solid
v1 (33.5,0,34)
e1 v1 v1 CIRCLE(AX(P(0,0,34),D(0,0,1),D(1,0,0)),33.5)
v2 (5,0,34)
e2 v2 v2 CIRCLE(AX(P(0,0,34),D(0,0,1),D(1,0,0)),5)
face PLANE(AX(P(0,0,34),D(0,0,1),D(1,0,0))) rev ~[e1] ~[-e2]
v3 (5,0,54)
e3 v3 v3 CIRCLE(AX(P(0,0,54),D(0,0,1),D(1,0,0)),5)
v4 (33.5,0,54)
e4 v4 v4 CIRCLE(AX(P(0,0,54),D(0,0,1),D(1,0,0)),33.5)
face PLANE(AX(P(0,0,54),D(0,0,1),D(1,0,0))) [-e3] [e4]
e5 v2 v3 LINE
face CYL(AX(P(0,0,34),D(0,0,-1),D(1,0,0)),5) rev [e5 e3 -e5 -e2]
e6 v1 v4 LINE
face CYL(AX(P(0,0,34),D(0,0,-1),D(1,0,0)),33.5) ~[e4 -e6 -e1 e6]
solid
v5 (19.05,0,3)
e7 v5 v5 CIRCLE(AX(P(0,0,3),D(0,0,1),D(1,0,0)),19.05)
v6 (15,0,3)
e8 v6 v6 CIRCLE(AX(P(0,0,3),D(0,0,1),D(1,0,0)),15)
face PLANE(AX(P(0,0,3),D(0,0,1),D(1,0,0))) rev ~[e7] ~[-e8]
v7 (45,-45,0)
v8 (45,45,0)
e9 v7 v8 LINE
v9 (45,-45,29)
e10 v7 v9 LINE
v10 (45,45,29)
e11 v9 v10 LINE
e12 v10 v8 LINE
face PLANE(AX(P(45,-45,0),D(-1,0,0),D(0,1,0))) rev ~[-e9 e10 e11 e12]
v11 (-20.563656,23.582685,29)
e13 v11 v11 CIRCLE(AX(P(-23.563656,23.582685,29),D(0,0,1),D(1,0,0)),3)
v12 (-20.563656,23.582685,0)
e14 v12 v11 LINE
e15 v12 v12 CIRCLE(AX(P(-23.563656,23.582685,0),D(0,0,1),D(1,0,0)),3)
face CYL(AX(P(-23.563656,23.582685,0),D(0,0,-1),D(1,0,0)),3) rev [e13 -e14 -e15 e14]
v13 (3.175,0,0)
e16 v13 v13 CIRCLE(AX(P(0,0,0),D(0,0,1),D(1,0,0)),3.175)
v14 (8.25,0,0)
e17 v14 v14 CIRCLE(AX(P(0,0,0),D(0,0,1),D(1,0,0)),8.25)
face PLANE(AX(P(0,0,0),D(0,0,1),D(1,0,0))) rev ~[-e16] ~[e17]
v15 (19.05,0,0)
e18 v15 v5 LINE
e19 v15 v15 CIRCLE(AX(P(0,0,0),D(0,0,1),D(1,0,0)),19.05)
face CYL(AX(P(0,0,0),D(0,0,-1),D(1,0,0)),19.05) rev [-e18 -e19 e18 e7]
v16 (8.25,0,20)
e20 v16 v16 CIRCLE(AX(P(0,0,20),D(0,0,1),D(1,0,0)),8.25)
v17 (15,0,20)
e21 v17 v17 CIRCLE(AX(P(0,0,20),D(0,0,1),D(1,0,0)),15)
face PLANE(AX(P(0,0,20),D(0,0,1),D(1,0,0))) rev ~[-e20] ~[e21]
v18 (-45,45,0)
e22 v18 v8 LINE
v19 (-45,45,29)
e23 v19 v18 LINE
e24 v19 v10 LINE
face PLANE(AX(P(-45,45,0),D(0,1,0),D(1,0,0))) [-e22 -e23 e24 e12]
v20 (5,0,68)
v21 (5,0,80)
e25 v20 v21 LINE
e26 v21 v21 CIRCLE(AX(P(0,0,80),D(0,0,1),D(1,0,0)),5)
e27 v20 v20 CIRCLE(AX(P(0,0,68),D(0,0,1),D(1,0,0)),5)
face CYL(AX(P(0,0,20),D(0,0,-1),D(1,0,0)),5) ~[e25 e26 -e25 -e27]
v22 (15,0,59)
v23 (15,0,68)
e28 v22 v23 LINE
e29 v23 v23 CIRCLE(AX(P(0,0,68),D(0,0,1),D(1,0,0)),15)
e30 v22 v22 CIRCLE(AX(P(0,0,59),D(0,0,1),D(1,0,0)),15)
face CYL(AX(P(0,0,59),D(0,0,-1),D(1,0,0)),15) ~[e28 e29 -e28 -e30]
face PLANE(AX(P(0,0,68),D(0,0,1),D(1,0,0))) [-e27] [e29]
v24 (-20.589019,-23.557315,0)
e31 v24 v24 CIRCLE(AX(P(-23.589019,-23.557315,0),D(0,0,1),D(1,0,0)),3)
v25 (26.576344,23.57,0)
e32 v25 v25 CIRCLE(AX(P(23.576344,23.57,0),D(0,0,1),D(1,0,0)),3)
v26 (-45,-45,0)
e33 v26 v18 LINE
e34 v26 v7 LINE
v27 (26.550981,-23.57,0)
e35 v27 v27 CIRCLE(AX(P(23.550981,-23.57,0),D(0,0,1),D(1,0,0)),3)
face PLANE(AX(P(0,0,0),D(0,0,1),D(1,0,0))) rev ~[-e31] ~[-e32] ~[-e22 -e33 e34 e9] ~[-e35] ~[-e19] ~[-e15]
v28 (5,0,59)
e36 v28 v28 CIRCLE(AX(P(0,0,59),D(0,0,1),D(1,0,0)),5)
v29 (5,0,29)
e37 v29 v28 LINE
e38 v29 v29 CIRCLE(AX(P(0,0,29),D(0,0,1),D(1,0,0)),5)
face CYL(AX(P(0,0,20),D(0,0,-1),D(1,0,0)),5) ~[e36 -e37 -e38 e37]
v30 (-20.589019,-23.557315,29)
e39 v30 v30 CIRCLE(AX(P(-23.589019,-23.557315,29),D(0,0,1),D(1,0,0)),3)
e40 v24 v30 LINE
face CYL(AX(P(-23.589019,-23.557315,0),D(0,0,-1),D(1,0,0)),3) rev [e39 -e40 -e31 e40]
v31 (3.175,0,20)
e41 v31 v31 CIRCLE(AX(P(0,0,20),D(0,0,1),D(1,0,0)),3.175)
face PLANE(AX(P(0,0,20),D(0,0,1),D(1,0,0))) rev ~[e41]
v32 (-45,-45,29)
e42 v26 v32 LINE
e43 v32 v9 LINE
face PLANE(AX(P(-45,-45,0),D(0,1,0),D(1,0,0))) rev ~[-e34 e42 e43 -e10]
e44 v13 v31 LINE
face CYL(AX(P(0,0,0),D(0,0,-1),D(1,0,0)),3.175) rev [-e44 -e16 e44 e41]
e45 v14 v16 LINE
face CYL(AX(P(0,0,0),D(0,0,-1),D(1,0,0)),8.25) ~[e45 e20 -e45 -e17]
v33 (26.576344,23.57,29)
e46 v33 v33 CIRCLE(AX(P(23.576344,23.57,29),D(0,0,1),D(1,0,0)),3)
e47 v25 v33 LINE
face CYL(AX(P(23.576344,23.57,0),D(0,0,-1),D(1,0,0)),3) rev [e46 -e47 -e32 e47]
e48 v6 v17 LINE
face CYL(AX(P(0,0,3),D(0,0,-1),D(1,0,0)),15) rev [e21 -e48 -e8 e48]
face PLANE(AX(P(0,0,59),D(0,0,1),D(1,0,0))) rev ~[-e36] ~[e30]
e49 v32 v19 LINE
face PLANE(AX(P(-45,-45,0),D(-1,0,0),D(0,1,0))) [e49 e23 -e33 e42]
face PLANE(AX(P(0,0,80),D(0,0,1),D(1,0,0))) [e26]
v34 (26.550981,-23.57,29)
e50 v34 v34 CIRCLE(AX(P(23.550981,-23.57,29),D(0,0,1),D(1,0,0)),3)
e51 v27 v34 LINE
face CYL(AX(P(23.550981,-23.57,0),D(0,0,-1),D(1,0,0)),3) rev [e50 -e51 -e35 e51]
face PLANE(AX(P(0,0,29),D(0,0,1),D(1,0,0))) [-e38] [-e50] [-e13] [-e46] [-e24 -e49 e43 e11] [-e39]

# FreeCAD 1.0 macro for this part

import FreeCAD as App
import Part
import Sketcher
from FreeCAD import Vector

doc = App.newDocument("Part")
params = doc.addObject("Spreadsheet::Sheet", "Params")
for row, (alias, value) in enumerate([
    ("sketch1_diameter", "16.5 mm"),
    ("sketch1_diameter2", "6.35 mm"),
    ("pad1_length", "20 mm"),
    ("sketch2_diameter", "10 mm"),
    ("pad2_length", "60 mm"),
    ("sketch3_diameter", "30 mm"),
    ("sketch3_diameter2", "10 mm"),
    ("pad3_length", "9 mm"),
    ("sketch4_diameter", "30 mm"),
    ("sketch4_diameter2", "10 mm"),
    ("pad4_length", "9 mm"),
    ("sketch5_diameter", "6 mm"),
    ("sketch5_diameter2", "30 mm"),
    ("sketch5_width", "90 mm"),
    ("pad5_length", "26 mm"),
    ("sketch6_diameter", "6 mm"),
    ("sketch6_diameter2", "38.1 mm"),
    ("sketch6_width", "90 mm"),
    ("pad6_length", "3 mm"),
    ("sketch7_diameter", "67 mm"),
    ("sketch7_diameter2", "10 mm"),
    ("pad7_length", "20 mm"),
], start=1):
    params.set(f"A{row}", alias)
    params.set(f"B{row}", "=" + value)
    params.setAlias(f"B{row}", alias)

body = doc.addObject("PartDesign::Body", "Body")

# Sketch on XY plane
sketch1 = body.newObject("Sketcher::SketchObject", "Sketch")
sketch1.AttachmentSupport = (doc.getObject("XY_Plane"), [""])
sketch1.MapMode = "FlatFace"
sketch1.addGeometry([
    Part.Circle(Vector(0, 0, 0), Vector(0, 0, 1), 8.2),
    Part.Circle(Vector(0, 0, 0), Vector(0, 0, 1), 3.2),
], False)
sketch1.addConstraint([
    Sketcher.Constraint("Coincident", 0, 3, -1, 1),
    Sketcher.Constraint("Coincident", 1, 3, -1, 1),
    Sketcher.Constraint("Diameter", 0, 16.5),
    Sketcher.Constraint("Diameter", 1, 6.35),
])
sketch1.setExpression("Constraints[2]", "Params.sketch1_diameter")
sketch1.setExpression("Constraints[3]", "Params.sketch1_diameter2")
pad1 = body.newObject("PartDesign::Pad", "Pad")
pad1.Profile = sketch1
pad1.setExpression("Length", "Params.pad1_length")

# Sketch on XY plane
sketch2 = body.newObject("Sketcher::SketchObject", "Sketch001")
sketch2.AttachmentSupport = (doc.getObject("XY_Plane"), [""])
sketch2.MapMode = "FlatFace"
sketch2.AttachmentOffset = App.Placement(Vector(0, 0, 20), App.Rotation())
sketch2.addGeometry(Part.Circle(Vector(0, 0, 0), Vector(0, 0, 1), 5), False)
sketch2.addConstraint([
    Sketcher.Constraint("Coincident", 0, 3, -1, 1),
    Sketcher.Constraint("Diameter", 0, 10.0),
])
sketch2.setExpression("Constraints[1]", "Params.sketch2_diameter")
pad2 = body.newObject("PartDesign::Pad", "Pad001")
pad2.Profile = sketch2
pad2.setExpression("Length", "Params.pad2_length")

# Sketch on XY plane
sketch3 = body.newObject("Sketcher::SketchObject", "Sketch002")
sketch3.AttachmentSupport = (doc.getObject("XY_Plane"), [""])
sketch3.MapMode = "FlatFace"
sketch3.AttachmentOffset = App.Placement(Vector(0, 0, 20), App.Rotation())
sketch3.addGeometry([
    Part.Circle(Vector(0, 0, 0), Vector(0, 0, 1), 15),
    Part.Circle(Vector(0, 0, 0), Vector(0, 0, 1), 5),
], False)
sketch3.addConstraint([
    Sketcher.Constraint("Coincident", 0, 3, -1, 1),
    Sketcher.Constraint("Coincident", 1, 3, -1, 1),
    Sketcher.Constraint("Diameter", 0, 30.0),
    Sketcher.Constraint("Diameter", 1, 10.0),
])
sketch3.setExpression("Constraints[2]", "Params.sketch3_diameter")
sketch3.setExpression("Constraints[3]", "Params.sketch3_diameter2")
pad3 = body.newObject("PartDesign::Pad", "Pad002")
pad3.Profile = sketch3
pad3.setExpression("Length", "Params.pad3_length")

# Sketch on XY plane
sketch4 = body.newObject("Sketcher::SketchObject", "Sketch003")
sketch4.AttachmentSupport = (doc.getObject("XY_Plane"), [""])
sketch4.MapMode = "FlatFace"
sketch4.AttachmentOffset = App.Placement(Vector(0, 0, 59), App.Rotation())
sketch4.addGeometry([
    Part.Circle(Vector(0, 0, 0), Vector(0, 0, 1), 15),
    Part.Circle(Vector(0, 0, 0), Vector(0, 0, 1), 5),
], False)
sketch4.addConstraint([
    Sketcher.Constraint("Coincident", 0, 3, -1, 1),
    Sketcher.Constraint("Coincident", 1, 3, -1, 1),
    Sketcher.Constraint("Diameter", 0, 30.0),
    Sketcher.Constraint("Diameter", 1, 10.0),
])
sketch4.setExpression("Constraints[2]", "Params.sketch4_diameter")
sketch4.setExpression("Constraints[3]", "Params.sketch4_diameter2")
pad4 = body.newObject("PartDesign::Pad", "Pad003")
pad4.Profile = sketch4
pad4.setExpression("Length", "Params.pad4_length")

# Sketch on XY plane
sketch5 = body.newObject("Sketcher::SketchObject", "Sketch004")
sketch5.AttachmentSupport = (doc.getObject("XY_Plane"), [""])
sketch5.MapMode = "FlatFace"
sketch5.AttachmentOffset = App.Placement(Vector(0, 0, 3), App.Rotation())
sketch5.addGeometry([
    Part.LineSegment(Vector(-45, 45, 0), Vector(-45, -45, 0)),  # 0
    Part.LineSegment(Vector(-45, -45, 0), Vector(45, -45, 0)),  # 1
    Part.LineSegment(Vector(45, -45, 0), Vector(45, 45, 0)),  # 2
    Part.LineSegment(Vector(45, 45, 0), Vector(-45, 45, 0)),  # 3
    Part.Circle(Vector(-23.6, -23.6, 0), Vector(0, 0, 1), 3),  # 4
    Part.Circle(Vector(23.6, -23.6, 0), Vector(0, 0, 1), 3),  # 5
    Part.Circle(Vector(0, 0, 0), Vector(0, 0, 1), 15),  # 6
    Part.Circle(Vector(-23.6, 23.6, 0), Vector(0, 0, 1), 3),  # 7
    Part.Circle(Vector(23.6, 23.6, 0), Vector(0, 0, 1), 3),  # 8
], False)
sketch5.addConstraint([
    Sketcher.Constraint("Coincident", 0, 2, 1, 1),
    Sketcher.Constraint("Coincident", 1, 2, 2, 1),
    Sketcher.Constraint("Coincident", 2, 2, 3, 1),
    Sketcher.Constraint("Coincident", 3, 2, 0, 1),
    Sketcher.Constraint("Vertical", 0),
    Sketcher.Constraint("Horizontal", 1),
    Sketcher.Constraint("Vertical", 2),
    Sketcher.Constraint("Horizontal", 3),
    Sketcher.Constraint("Coincident", 6, 3, -1, 1),
    Sketcher.Constraint("Equal", 4, 5),
    Sketcher.Constraint("Equal", 5, 7),
    Sketcher.Constraint("Equal", 7, 8),
    Sketcher.Constraint("Symmetric", 0, 2, 2, 2, -1, 1),
    Sketcher.Constraint("Equal", 3, 0),
    Sketcher.Constraint("Diameter", 4, 6.0),
    Sketcher.Constraint("Diameter", 6, 30.0),
    Sketcher.Constraint("DistanceX", 1, 1, 1, 2, 90.0),
    Sketcher.Constraint("DistanceY", 5, 3, -1, 1, 23.57),
    Sketcher.Constraint("DistanceY", -1, 1, 8, 3, 23.57),
    Sketcher.Constraint("DistanceX", 4, 3, 5, 3, 47.14),
    Sketcher.Constraint("DistanceY", 4, 3, 7, 3, 47.14),
    Sketcher.Constraint("DistanceX", 7, 3, 8, 3, 47.14),
    Sketcher.Constraint("DistanceX", 4, 3, -1, 1, 23.589019),
    Sketcher.Constraint("DistanceY", 4, 3, -1, 1, 23.557315),
    Sketcher.Constraint("DistanceX", 7, 3, -1, 1, 23.563656),
])
sketch5.setExpression("Constraints[14]", "Params.sketch5_diameter")
sketch5.setExpression("Constraints[15]", "Params.sketch5_diameter2")
sketch5.setExpression("Constraints[16]", "Params.sketch5_width")
pad5 = body.newObject("PartDesign::Pad", "Pad004")
pad5.Profile = sketch5
pad5.setExpression("Length", "Params.pad5_length")

# Sketch on XY plane
sketch6 = body.newObject("Sketcher::SketchObject", "Sketch005")
sketch6.AttachmentSupport = (doc.getObject("XY_Plane"), [""])
sketch6.MapMode = "FlatFace"
sketch6.addGeometry([
    Part.LineSegment(Vector(-45, 45, 0), Vector(-45, -45, 0)),  # 0
    Part.LineSegment(Vector(-45, -45, 0), Vector(45, -45, 0)),  # 1
    Part.LineSegment(Vector(45, -45, 0), Vector(45, 45, 0)),  # 2
    Part.LineSegment(Vector(45, 45, 0), Vector(-45, 45, 0)),  # 3
    Part.Circle(Vector(-23.6, -23.6, 0), Vector(0, 0, 1), 3),  # 4
    Part.Circle(Vector(23.6, -23.6, 0), Vector(0, 0, 1), 3),  # 5
    Part.Circle(Vector(0, 0, 0), Vector(0, 0, 1), 19.1),  # 6
    Part.Circle(Vector(-23.6, 23.6, 0), Vector(0, 0, 1), 3),  # 7
    Part.Circle(Vector(23.6, 23.6, 0), Vector(0, 0, 1), 3),  # 8
], False)
sketch6.addConstraint([
    Sketcher.Constraint("Coincident", 0, 2, 1, 1),
    Sketcher.Constraint("Coincident", 1, 2, 2, 1),
    Sketcher.Constraint("Coincident", 2, 2, 3, 1),
    Sketcher.Constraint("Coincident", 3, 2, 0, 1),
    Sketcher.Constraint("Vertical", 0),
    Sketcher.Constraint("Horizontal", 1),
    Sketcher.Constraint("Vertical", 2),
    Sketcher.Constraint("Horizontal", 3),
    Sketcher.Constraint("Coincident", 6, 3, -1, 1),
    Sketcher.Constraint("Equal", 4, 5),
    Sketcher.Constraint("Equal", 5, 7),
    Sketcher.Constraint("Equal", 7, 8),
    Sketcher.Constraint("Symmetric", 0, 2, 2, 2, -1, 1),
    Sketcher.Constraint("Equal", 3, 0),
    Sketcher.Constraint("Diameter", 4, 6.0),
    Sketcher.Constraint("Diameter", 6, 38.1),
    Sketcher.Constraint("DistanceX", 1, 1, 1, 2, 90.0),
    Sketcher.Constraint("DistanceY", 5, 3, -1, 1, 23.57),
    Sketcher.Constraint("DistanceY", -1, 1, 8, 3, 23.57),
    Sketcher.Constraint("DistanceX", 4, 3, 5, 3, 47.14),
    Sketcher.Constraint("DistanceY", 4, 3, 7, 3, 47.14),
    Sketcher.Constraint("DistanceX", 7, 3, 8, 3, 47.14),
    Sketcher.Constraint("DistanceX", 4, 3, -1, 1, 23.589019),
    Sketcher.Constraint("DistanceY", 4, 3, -1, 1, 23.557315),
    Sketcher.Constraint("DistanceX", 7, 3, -1, 1, 23.563656),
])
sketch6.setExpression("Constraints[14]", "Params.sketch6_diameter")
sketch6.setExpression("Constraints[15]", "Params.sketch6_diameter2")
sketch6.setExpression("Constraints[16]", "Params.sketch6_width")
pad6 = body.newObject("PartDesign::Pad", "Pad005")
pad6.Profile = sketch6
pad6.setExpression("Length", "Params.pad6_length")
body2 = doc.addObject("PartDesign::Body", "Body001")

# Sketch on XY plane
sketch7 = body2.newObject("Sketcher::SketchObject", "Sketch006")
sketch7.AttachmentSupport = (doc.getObject("XY_Plane001"), [""])
sketch7.MapMode = "FlatFace"
sketch7.AttachmentOffset = App.Placement(Vector(0, 0, 34), App.Rotation())
sketch7.addGeometry([
    Part.Circle(Vector(0, 0, 0), Vector(0, 0, 1), 34),
    Part.Circle(Vector(0, 0, 0), Vector(0, 0, 1), 5),
], False)
sketch7.addConstraint([
    Sketcher.Constraint("Coincident", 0, 3, -1, 1),
    Sketcher.Constraint("Coincident", 1, 3, -1, 1),
    Sketcher.Constraint("Diameter", 0, 67.0),
    Sketcher.Constraint("Diameter", 1, 10.0),
])
sketch7.setExpression("Constraints[2]", "Params.sketch7_diameter")
sketch7.setExpression("Constraints[3]", "Params.sketch7_diameter2")
pad7 = body2.newObject("PartDesign::Pad", "Pad006")
pad7.Profile = sketch7
pad7.setExpression("Length", "Params.pad7_length")

doc.recompute()
